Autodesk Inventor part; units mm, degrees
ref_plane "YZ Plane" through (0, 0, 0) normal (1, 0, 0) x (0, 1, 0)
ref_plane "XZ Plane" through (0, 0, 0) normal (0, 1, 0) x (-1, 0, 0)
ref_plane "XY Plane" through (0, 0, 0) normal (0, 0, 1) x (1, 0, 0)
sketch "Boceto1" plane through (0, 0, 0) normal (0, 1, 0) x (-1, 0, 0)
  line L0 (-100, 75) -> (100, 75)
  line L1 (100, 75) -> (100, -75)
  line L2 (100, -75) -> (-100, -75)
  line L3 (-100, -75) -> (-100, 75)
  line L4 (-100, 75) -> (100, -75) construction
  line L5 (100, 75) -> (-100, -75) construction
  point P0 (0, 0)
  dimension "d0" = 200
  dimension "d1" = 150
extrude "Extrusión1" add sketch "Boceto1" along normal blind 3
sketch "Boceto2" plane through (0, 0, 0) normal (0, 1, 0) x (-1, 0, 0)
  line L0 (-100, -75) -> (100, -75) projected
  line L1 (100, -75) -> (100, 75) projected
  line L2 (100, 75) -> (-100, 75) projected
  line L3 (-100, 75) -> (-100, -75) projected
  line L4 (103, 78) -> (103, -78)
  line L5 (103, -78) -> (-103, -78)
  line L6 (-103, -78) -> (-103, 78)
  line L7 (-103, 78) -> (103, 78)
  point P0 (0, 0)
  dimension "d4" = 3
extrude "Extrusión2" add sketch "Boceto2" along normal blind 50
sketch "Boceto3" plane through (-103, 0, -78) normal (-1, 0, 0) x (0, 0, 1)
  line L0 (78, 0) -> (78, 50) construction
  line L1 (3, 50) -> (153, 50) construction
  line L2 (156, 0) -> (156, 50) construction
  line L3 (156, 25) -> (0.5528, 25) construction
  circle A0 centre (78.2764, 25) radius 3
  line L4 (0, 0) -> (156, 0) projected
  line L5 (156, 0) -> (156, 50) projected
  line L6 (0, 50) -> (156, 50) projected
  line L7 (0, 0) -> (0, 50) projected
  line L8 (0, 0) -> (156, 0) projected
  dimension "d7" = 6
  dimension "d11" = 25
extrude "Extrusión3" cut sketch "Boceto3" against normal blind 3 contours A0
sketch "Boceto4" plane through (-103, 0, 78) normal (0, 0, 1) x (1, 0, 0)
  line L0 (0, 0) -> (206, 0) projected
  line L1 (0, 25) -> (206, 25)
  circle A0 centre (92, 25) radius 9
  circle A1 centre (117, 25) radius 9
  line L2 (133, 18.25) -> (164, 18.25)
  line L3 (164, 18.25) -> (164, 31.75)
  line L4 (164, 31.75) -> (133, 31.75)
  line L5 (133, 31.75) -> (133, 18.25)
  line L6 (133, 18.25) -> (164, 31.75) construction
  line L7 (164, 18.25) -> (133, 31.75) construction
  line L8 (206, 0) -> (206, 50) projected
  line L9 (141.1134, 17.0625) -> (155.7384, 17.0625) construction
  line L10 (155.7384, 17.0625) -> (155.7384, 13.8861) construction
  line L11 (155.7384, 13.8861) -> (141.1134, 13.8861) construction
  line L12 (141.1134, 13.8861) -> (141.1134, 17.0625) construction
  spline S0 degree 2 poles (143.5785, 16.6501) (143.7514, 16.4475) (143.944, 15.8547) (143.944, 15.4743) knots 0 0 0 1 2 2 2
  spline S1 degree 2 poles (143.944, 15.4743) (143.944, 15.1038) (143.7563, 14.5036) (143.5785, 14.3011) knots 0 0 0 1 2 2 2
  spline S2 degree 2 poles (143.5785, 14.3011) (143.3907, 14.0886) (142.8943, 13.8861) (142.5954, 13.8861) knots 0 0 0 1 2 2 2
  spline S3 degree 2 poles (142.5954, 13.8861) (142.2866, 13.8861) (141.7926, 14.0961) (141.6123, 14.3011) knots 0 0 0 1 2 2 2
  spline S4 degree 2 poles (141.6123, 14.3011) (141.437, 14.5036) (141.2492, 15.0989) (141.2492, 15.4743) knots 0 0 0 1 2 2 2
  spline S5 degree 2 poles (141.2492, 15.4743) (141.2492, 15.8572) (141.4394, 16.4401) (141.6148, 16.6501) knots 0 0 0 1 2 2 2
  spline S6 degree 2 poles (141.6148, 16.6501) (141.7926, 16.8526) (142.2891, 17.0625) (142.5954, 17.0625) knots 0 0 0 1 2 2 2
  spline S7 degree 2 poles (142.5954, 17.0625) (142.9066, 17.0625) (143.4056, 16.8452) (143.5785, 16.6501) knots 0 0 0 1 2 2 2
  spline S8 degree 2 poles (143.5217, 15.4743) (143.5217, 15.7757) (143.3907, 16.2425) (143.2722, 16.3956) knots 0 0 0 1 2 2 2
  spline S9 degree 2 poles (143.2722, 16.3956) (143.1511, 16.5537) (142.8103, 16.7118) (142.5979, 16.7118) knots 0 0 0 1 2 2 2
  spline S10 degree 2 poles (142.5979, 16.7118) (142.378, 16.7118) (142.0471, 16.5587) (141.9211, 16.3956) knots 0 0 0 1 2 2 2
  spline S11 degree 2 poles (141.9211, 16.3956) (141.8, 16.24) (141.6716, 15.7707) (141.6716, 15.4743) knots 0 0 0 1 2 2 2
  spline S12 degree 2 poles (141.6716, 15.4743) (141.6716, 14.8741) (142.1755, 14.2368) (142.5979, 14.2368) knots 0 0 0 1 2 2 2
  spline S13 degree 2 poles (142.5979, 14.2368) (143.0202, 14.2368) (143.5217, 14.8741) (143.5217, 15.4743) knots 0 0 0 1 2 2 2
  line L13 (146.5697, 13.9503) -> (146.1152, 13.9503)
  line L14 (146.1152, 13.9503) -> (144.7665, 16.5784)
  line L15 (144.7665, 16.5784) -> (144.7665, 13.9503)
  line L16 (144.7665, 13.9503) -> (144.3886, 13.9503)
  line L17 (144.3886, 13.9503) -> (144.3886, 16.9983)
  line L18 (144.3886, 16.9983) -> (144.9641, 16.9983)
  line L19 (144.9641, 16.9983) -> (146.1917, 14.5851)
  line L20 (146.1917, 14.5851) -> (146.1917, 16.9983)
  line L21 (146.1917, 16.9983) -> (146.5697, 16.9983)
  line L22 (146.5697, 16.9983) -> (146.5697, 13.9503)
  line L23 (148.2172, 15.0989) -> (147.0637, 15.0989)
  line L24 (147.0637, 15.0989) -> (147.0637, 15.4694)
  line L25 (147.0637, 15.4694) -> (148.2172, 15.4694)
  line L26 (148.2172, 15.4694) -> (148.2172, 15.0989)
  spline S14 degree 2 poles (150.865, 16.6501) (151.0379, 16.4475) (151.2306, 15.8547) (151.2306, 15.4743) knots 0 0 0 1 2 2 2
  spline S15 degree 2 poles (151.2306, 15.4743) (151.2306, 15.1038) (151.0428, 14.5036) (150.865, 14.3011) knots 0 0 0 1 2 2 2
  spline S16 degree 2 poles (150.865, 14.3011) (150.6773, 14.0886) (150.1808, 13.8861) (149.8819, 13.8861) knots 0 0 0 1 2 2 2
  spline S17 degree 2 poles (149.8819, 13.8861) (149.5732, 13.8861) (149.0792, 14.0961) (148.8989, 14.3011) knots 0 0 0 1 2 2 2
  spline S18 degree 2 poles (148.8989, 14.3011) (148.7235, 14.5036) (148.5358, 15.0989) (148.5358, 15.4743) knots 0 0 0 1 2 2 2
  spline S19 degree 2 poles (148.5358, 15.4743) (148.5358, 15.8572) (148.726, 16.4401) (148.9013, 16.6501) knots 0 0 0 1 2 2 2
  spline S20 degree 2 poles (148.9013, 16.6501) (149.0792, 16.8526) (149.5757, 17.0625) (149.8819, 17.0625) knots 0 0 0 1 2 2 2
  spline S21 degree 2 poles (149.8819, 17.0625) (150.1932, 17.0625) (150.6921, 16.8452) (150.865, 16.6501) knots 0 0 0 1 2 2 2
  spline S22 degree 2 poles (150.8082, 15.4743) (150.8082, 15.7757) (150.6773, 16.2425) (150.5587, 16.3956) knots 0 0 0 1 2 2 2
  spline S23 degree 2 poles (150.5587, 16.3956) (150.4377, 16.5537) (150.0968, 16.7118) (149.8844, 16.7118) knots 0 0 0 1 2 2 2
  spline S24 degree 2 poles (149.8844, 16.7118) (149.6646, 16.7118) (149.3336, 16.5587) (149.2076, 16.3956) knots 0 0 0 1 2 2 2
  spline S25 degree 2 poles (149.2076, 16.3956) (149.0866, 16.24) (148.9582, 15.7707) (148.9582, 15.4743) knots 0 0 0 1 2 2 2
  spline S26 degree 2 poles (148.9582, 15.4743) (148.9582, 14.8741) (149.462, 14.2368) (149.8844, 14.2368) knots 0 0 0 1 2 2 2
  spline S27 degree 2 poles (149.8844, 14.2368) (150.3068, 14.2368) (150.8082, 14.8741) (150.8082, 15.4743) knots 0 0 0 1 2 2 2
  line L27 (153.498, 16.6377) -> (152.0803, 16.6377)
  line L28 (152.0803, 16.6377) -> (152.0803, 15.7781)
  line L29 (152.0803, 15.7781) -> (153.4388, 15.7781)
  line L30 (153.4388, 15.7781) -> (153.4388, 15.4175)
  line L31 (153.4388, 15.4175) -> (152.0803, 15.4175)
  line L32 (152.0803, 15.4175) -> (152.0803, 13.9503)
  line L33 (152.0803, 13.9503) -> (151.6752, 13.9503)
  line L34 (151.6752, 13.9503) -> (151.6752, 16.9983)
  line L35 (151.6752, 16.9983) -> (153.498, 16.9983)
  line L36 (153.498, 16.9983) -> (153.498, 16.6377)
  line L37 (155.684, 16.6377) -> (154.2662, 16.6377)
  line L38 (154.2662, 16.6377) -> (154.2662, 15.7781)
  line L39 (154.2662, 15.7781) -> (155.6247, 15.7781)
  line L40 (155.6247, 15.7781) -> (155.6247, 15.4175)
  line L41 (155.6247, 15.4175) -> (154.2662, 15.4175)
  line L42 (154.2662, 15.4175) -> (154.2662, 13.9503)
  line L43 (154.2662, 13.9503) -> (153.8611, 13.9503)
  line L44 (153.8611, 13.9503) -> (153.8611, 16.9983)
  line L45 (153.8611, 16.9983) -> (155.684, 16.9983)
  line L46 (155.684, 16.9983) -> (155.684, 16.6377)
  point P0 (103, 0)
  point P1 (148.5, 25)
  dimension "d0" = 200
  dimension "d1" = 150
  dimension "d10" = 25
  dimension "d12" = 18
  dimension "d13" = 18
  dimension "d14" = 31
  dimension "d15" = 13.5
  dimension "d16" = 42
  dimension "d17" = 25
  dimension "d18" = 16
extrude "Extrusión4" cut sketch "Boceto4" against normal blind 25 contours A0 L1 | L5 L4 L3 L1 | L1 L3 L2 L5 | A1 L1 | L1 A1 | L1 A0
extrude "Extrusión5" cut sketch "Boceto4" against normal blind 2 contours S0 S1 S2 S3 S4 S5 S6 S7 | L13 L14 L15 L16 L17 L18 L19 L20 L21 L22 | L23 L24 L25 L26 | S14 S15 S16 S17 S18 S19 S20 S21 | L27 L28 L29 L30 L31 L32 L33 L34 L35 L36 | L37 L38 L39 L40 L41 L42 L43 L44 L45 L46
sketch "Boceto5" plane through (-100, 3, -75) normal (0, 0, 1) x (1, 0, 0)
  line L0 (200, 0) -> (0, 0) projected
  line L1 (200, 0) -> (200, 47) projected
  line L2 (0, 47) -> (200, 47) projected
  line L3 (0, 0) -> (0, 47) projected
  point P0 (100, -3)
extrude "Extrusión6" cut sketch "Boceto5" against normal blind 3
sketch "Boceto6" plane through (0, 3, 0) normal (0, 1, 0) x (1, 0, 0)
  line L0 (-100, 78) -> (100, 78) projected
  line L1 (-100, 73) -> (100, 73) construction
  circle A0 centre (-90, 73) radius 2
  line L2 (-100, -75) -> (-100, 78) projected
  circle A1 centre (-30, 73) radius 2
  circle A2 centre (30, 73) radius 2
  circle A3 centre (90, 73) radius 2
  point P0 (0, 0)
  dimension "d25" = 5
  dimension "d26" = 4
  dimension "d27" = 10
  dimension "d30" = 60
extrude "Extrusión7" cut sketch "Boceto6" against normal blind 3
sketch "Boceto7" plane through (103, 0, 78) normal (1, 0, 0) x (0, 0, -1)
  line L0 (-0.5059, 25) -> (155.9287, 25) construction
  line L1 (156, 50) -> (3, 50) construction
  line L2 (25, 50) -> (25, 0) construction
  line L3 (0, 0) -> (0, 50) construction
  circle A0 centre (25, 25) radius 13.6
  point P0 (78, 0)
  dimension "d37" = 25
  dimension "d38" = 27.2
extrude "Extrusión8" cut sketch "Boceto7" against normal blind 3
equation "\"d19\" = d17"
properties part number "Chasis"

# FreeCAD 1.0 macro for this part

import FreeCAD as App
import Part
import Sketcher
Q = App.Units.Quantity


def add_polygon(sketch, points):
    """Adds a closed chain of lines whose ends are joined by coincident constraints."""
    first, n = sketch.GeometryCount, len(points)
    for a, b in zip(points, points[1:] + points[:1]):
        sketch.addGeometry(Part.LineSegment(App.Vector(*a, 0), App.Vector(*b, 0)), False)
    for i in range(n):
        sketch.addConstraint(Sketcher.Constraint("Coincident", first + i, 2, first + (i + 1) % n, 1))

doc = App.newDocument("Part")
params = doc.addObject("Spreadsheet::Sheet", "Params")
for row, (alias, value) in enumerate([
    ("sketch1_width", "200 mm"),
    ("sketch1_height", "150 mm"),
    ("pad1_length", "3 mm"),
    ("sketch2_width", "206 mm"),
    ("sketch2_height", "156 mm"),
    ("pad2_length", "50 mm"),
    ("sketch3_diameter", "6 mm"),
    ("pocket1_length", "3 mm"),
    ("sketch4_diameter", "18 mm"),
    ("sketch4_width", "31 mm"),
    ("sketch4_height", "13.5 mm"),
    ("pocket2_length", "25 mm"),
    ("pocket3_length", "2 mm"),
    ("sketch6_width", "200 mm"),
    ("sketch6_height", "47 mm"),
    ("pocket4_length", "3 mm"),
    ("sketch7_diameter", "4 mm"),
    ("pocket5_length", "3 mm"),
    ("sketch8_diameter", "27.2 mm"),
    ("pocket6_length", "3 mm"),
], start=1):
    params.set(f"A{row}", alias)
    params.set(f"B{row}", "=" + value)
    params.setAlias(f"B{row}", alias)

body = doc.addObject("PartDesign::Body", "Body")

# Sketch on XZ plane
sketch1 = body.newObject("Sketcher::SketchObject", "Sketch")
sketch1.AttachmentSupport = (doc.getObject("XZ_Plane"), [""])
sketch1.MapMode = "FlatFace"
add_polygon(sketch1, [(-100, 75), (100, 75), (100, -75), (-100, -75)])  # lines 0-3
sketch1.addConstraint(Sketcher.Constraint("Horizontal", 0))
sketch1.addConstraint(Sketcher.Constraint("Vertical", 1))
sketch1.addConstraint(Sketcher.Constraint("Horizontal", 2))
sketch1.addConstraint(Sketcher.Constraint("Vertical", 3))
sketch1.addConstraint(Sketcher.Constraint("Symmetric", 0, 2, 2, 2, -1, 1))
sketch1.addConstraint(Sketcher.Constraint("DistanceX", 0, 1, 0, 2, Q("200 mm")))
sketch1.addConstraint(Sketcher.Constraint("DistanceY", 1, 2, 1, 1, Q("150 mm")))
sketch1.setExpression("Constraints[9]", "Params.sketch1_width")
sketch1.setExpression("Constraints[10]", "Params.sketch1_height")
pad1 = body.newObject("PartDesign::Pad", "Pad")
pad1.Profile = sketch1
pad1.setExpression("Length", "Params.pad1_length")
pad1.Reversed = True

# Sketch on XZ plane
sketch2 = body.newObject("Sketcher::SketchObject", "Sketch001")
sketch2.AttachmentSupport = (doc.getObject("XZ_Plane"), [""])
sketch2.MapMode = "FlatFace"
add_polygon(sketch2, [(-103, -78), (-103, 78), (103, 78), (103, -78)])  # lines 0-3
add_polygon(sketch2, [(-100, -75), (100, -75), (100, 75), (-100, 75)])  # lines 4-7
sketch2.addConstraint(Sketcher.Constraint("Vertical", 0))
sketch2.addConstraint(Sketcher.Constraint("Horizontal", 1))
sketch2.addConstraint(Sketcher.Constraint("Vertical", 2))
sketch2.addConstraint(Sketcher.Constraint("Horizontal", 3))
sketch2.addConstraint(Sketcher.Constraint("Horizontal", 4))
sketch2.addConstraint(Sketcher.Constraint("Vertical", 5))
sketch2.addConstraint(Sketcher.Constraint("Horizontal", 6))
sketch2.addConstraint(Sketcher.Constraint("Vertical", 7))
sketch2.addConstraint(Sketcher.Constraint("Symmetric", 0, 2, 2, 2, -1, 1))
sketch2.addConstraint(Sketcher.Constraint("Symmetric", 4, 2, 6, 2, -1, 1))
sketch2.addConstraint(Sketcher.Constraint("DistanceX", 4, 2, 2, 2, Q("3 mm")))
sketch2.addConstraint(Sketcher.Constraint("DistanceY", 2, 2, 4, 2, Q("3 mm")))
sketch2.addConstraint(Sketcher.Constraint("DistanceX", 1, 1, 1, 2, Q("206 mm")))
sketch2.addConstraint(Sketcher.Constraint("DistanceY", 0, 1, 0, 2, Q("156 mm")))
sketch2.setExpression("Constraints[20]", "Params.sketch2_width")
sketch2.setExpression("Constraints[21]", "Params.sketch2_height")
pad2 = body.newObject("PartDesign::Pad", "Pad001")
pad2.Profile = sketch2
pad2.setExpression("Length", "Params.pad2_length")
pad2.Reversed = True

# Sketch on YZ plane
sketch3 = body.newObject("Sketcher::SketchObject", "Sketch002")
sketch3.AttachmentSupport = (doc.getObject("YZ_Plane"), [""])
sketch3.MapMode = "FlatFace"
sketch3.AttachmentOffset = App.Placement(App.Vector(0, 0, -103), App.Rotation())
sketch3.addGeometry(Part.Circle(App.Vector(25, 0.3, 0), App.Vector(0, 0, 1), 3), False)
sketch3.addConstraint(Sketcher.Constraint("Diameter", 0, Q("6 mm")))
sketch3.addConstraint(Sketcher.Constraint("DistanceX", -1, 1, 0, 3, Q("25 mm")))
sketch3.addConstraint(Sketcher.Constraint("DistanceY", -1, 1, 0, 3, Q("0.2764 mm")))
sketch3.setExpression("Constraints[0]", "Params.sketch3_diameter")
pocket1 = body.newObject("PartDesign::Pocket", "Pocket")
pocket1.Profile = sketch3
pocket1.setExpression("Length", "Params.pocket1_length")
pocket1.Reversed = True

# Sketch on XY plane
sketch4 = body.newObject("Sketcher::SketchObject", "Sketch003")
sketch4.AttachmentSupport = (doc.getObject("XY_Plane"), [""])
sketch4.MapMode = "FlatFace"
sketch4.AttachmentOffset = App.Placement(App.Vector(0, 0, 78), App.Rotation())
sketch4.addGeometry(Part.Circle(App.Vector(-11, 25, 0), App.Vector(0, 0, 1), 9), False)  # 0
add_polygon(sketch4, [(30, 32), (30, 18), (61, 18), (61, 32)])  # lines 1-4
sketch4.addGeometry(Part.Circle(App.Vector(14, 25, 0), App.Vector(0, 0, 1), 9), False)  # 5
sketch4.addConstraint(Sketcher.Constraint("Vertical", 1))
sketch4.addConstraint(Sketcher.Constraint("Horizontal", 2))
sketch4.addConstraint(Sketcher.Constraint("Vertical", 3))
sketch4.addConstraint(Sketcher.Constraint("Horizontal", 4))
sketch4.addConstraint(Sketcher.Constraint("Equal", 0, 5))
sketch4.addConstraint(Sketcher.Constraint("Horizontal", 0, 3, 5, 3))
sketch4.addConstraint(Sketcher.Constraint("Diameter", 0, Q("18 mm")))
sketch4.addConstraint(Sketcher.Constraint("DistanceX", 2, 1, 2, 2, Q("31 mm")))
sketch4.addConstraint(Sketcher.Constraint("DistanceY", 1, 2, 1, 1, Q("13.5 mm")))
sketch4.addConstraint(Sketcher.Constraint("DistanceY", -1, 1, 0, 3, Q("25 mm")))
sketch4.addConstraint(Sketcher.Constraint("DistanceX", 0, 3, 5, 3, Q("25 mm")))
sketch4.addConstraint(Sketcher.Constraint("DistanceX", 5, 3, 1, 2, Q("16 mm")))
sketch4.addConstraint(Sketcher.Constraint("DistanceX", 0, 3, -1, 1, Q("11 mm")))
sketch4.addConstraint(Sketcher.Constraint("DistanceY", -1, 1, 1, 2, Q("18.25 mm")))
sketch4.setExpression("Constraints[10]", "Params.sketch4_diameter")
sketch4.setExpression("Constraints[11]", "Params.sketch4_width")
sketch4.setExpression("Constraints[12]", "Params.sketch4_height")
pocket2 = body.newObject("PartDesign::Pocket", "Pocket001")
pocket2.Profile = sketch4
pocket2.setExpression("Length", "Params.pocket2_length")

# Sketch on XY plane
sketch5 = body.newObject("Sketcher::SketchObject", "Sketch004")
sketch5.AttachmentSupport = (doc.getObject("XY_Plane"), [""])
sketch5.MapMode = "FlatFace"
sketch5.AttachmentOffset = App.Placement(App.Vector(0, 0, 78), App.Rotation())
sketch5.addGeometry(Part.BSplineCurve([App.Vector(40.5785, 16.6501, 0), App.Vector(40.7514, 16.4475, 0), App.Vector(40.944, 15.8547, 0), App.Vector(40.944, 15.4743, 0)], [3, 1, 3], [0, 1, 2], False, 2, [1, 1, 1, 1], False), False)  # 0
sketch5.addGeometry(Part.BSplineCurve([App.Vector(39.5954, 17.0625, 0), App.Vector(39.9066, 17.0625, 0), App.Vector(40.4056, 16.8452, 0), App.Vector(40.5785, 16.6501, 0)], [3, 1, 3], [0, 1, 2], False, 2, [1, 1, 1, 1], False), False)  # 1
sketch5.addGeometry(Part.BSplineCurve([App.Vector(38.6148, 16.6501, 0), App.Vector(38.7926, 16.8526, 0), App.Vector(39.2891, 17.0625, 0), App.Vector(39.5954, 17.0625, 0)], [3, 1, 3], [0, 1, 2], False, 2, [1, 1, 1, 1], False), False)  # 2
sketch5.addGeometry(Part.BSplineCurve([App.Vector(38.2492, 15.4743, 0), App.Vector(38.2492, 15.8572, 0), App.Vector(38.4394, 16.4401, 0), App.Vector(38.6148, 16.6501, 0)], [3, 1, 3], [0, 1, 2], False, 2, [1, 1, 1, 1], False), False)  # 3
sketch5.addGeometry(Part.BSplineCurve([App.Vector(38.6123, 14.3011, 0), App.Vector(38.437, 14.5036, 0), App.Vector(38.2492, 15.0989, 0), App.Vector(38.2492, 15.4743, 0)], [3, 1, 3], [0, 1, 2], False, 2, [1, 1, 1, 1], False), False)  # 4
sketch5.addGeometry(Part.BSplineCurve([App.Vector(39.5954, 13.8861, 0), App.Vector(39.2866, 13.8861, 0), App.Vector(38.7926, 14.0961, 0), App.Vector(38.6123, 14.3011, 0)], [3, 1, 3], [0, 1, 2], False, 2, [1, 1, 1, 1], False), False)  # 5
sketch5.addGeometry(Part.BSplineCurve([App.Vector(40.5785, 14.3011, 0), App.Vector(40.3907, 14.0886, 0), App.Vector(39.8943, 13.8861, 0), App.Vector(39.5954, 13.8861, 0)], [3, 1, 3], [0, 1, 2], False, 2, [1, 1, 1, 1], False), False)  # 6
sketch5.addGeometry(Part.BSplineCurve([App.Vector(40.944, 15.4743, 0), App.Vector(40.944, 15.1038, 0), App.Vector(40.7563, 14.5036, 0), App.Vector(40.5785, 14.3011, 0)], [3, 1, 3], [0, 1, 2], False, 2, [1, 1, 1, 1], False), False)  # 7
sketch5.addGeometry(Part.BSplineCurve([App.Vector(40.5217, 15.4743, 0), App.Vector(40.5217, 15.7757, 0), App.Vector(40.3907, 16.2425, 0), App.Vector(40.2722, 16.3956, 0)], [3, 1, 3], [0, 1, 2], False, 2, [1, 1, 1, 1], False), False)  # 8
sketch5.addGeometry(Part.BSplineCurve([App.Vector(39.5979, 14.2368, 0), App.Vector(40.0202, 14.2368, 0), App.Vector(40.5217, 14.8741, 0), App.Vector(40.5217, 15.4743, 0)], [3, 1, 3], [0, 1, 2], False, 2, [1, 1, 1, 1], False), False)  # 9
sketch5.addGeometry(Part.BSplineCurve([App.Vector(38.6716, 15.4743, 0), App.Vector(38.6716, 14.8741, 0), App.Vector(39.1755, 14.2368, 0), App.Vector(39.5979, 14.2368, 0)], [3, 1, 3], [0, 1, 2], False, 2, [1, 1, 1, 1], False), False)  # 10
sketch5.addGeometry(Part.BSplineCurve([App.Vector(38.9211, 16.3956, 0), App.Vector(38.8, 16.24, 0), App.Vector(38.6716, 15.7707, 0), App.Vector(38.6716, 15.4743, 0)], [3, 1, 3], [0, 1, 2], False, 2, [1, 1, 1, 1], False), False)  # 11
sketch5.addGeometry(Part.BSplineCurve([App.Vector(39.5979, 16.7118, 0), App.Vector(39.378, 16.7118, 0), App.Vector(39.0471, 16.5587, 0), App.Vector(38.9211, 16.3956, 0)], [3, 1, 3], [0, 1, 2], False, 2, [1, 1, 1, 1], False), False)  # 12
sketch5.addGeometry(Part.BSplineCurve([App.Vector(40.2722, 16.3956, 0), App.Vector(40.1511, 16.5537, 0), App.Vector(39.8103, 16.7118, 0), App.Vector(39.5979, 16.7118, 0)], [3, 1, 3], [0, 1, 2], False, 2, [1, 1, 1, 1], False), False)  # 13
add_polygon(sketch5, [(43.1152, 13.9503), (43.5697, 13.9503), (43.5697, 16.9983), (43.1917, 16.9983), (43.1917, 14.5851), (41.9641, 16.9983), (41.3886, 16.9983), (41.3886, 13.9503), (41.7665, 13.9503), (41.7665, 16.5784)])  # lines 14-23
add_polygon(sketch5, [(44.0637, 15.0989), (45.2172, 15.0989), (45.2172, 15.4694), (44.0637, 15.4694)])  # lines 24-27
sketch5.addGeometry(Part.BSplineCurve([App.Vector(47.865, 16.6501, 0), App.Vector(48.0379, 16.4475, 0), App.Vector(48.2306, 15.8547, 0), App.Vector(48.2306, 15.4743, 0)], [3, 1, 3], [0, 1, 2], False, 2, [1, 1, 1, 1], False), False)  # 28
sketch5.addGeometry(Part.BSplineCurve([App.Vector(46.8819, 17.0625, 0), App.Vector(47.1932, 17.0625, 0), App.Vector(47.6921, 16.8452, 0), App.Vector(47.865, 16.6501, 0)], [3, 1, 3], [0, 1, 2], False, 2, [1, 1, 1, 1], False), False)  # 29
sketch5.addGeometry(Part.BSplineCurve([App.Vector(45.9013, 16.6501, 0), App.Vector(46.0792, 16.8526, 0), App.Vector(46.5757, 17.0625, 0), App.Vector(46.8819, 17.0625, 0)], [3, 1, 3], [0, 1, 2], False, 2, [1, 1, 1, 1], False), False)  # 30
sketch5.addGeometry(Part.BSplineCurve([App.Vector(45.5358, 15.4743, 0), App.Vector(45.5358, 15.8572, 0), App.Vector(45.726, 16.4401, 0), App.Vector(45.9013, 16.6501, 0)], [3, 1, 3], [0, 1, 2], False, 2, [1, 1, 1, 1], False), False)  # 31
sketch5.addGeometry(Part.BSplineCurve([App.Vector(45.8989, 14.3011, 0), App.Vector(45.7235, 14.5036, 0), App.Vector(45.5358, 15.0989, 0), App.Vector(45.5358, 15.4743, 0)], [3, 1, 3], [0, 1, 2], False, 2, [1, 1, 1, 1], False), False)  # 32
sketch5.addGeometry(Part.BSplineCurve([App.Vector(46.8819, 13.8861, 0), App.Vector(46.5732, 13.8861, 0), App.Vector(46.0792, 14.0961, 0), App.Vector(45.8989, 14.3011, 0)], [3, 1, 3], [0, 1, 2], False, 2, [1, 1, 1, 1], False), False)  # 33
sketch5.addGeometry(Part.BSplineCurve([App.Vector(47.865, 14.3011, 0), App.Vector(47.6773, 14.0886, 0), App.Vector(47.1808, 13.8861, 0), App.Vector(46.8819, 13.8861, 0)], [3, 1, 3], [0, 1, 2], False, 2, [1, 1, 1, 1], False), False)  # 34
sketch5.addGeometry(Part.BSplineCurve([App.Vector(48.2306, 15.4743, 0), App.Vector(48.2306, 15.1038, 0), App.Vector(48.0428, 14.5036, 0), App.Vector(47.865, 14.3011, 0)], [3, 1, 3], [0, 1, 2], False, 2, [1, 1, 1, 1], False), False)  # 35
sketch5.addGeometry(Part.BSplineCurve([App.Vector(47.8082, 15.4743, 0), App.Vector(47.8082, 15.7757, 0), App.Vector(47.6773, 16.2425, 0), App.Vector(47.5587, 16.3956, 0)], [3, 1, 3], [0, 1, 2], False, 2, [1, 1, 1, 1], False), False)  # 36
sketch5.addGeometry(Part.BSplineCurve([App.Vector(46.8844, 14.2368, 0), App.Vector(47.3068, 14.2368, 0), App.Vector(47.8082, 14.8741, 0), App.Vector(47.8082, 15.4743, 0)], [3, 1, 3], [0, 1, 2], False, 2, [1, 1, 1, 1], False), False)  # 37
sketch5.addGeometry(Part.BSplineCurve([App.Vector(45.9582, 15.4743, 0), App.Vector(45.9582, 14.8741, 0), App.Vector(46.462, 14.2368, 0), App.Vector(46.8844, 14.2368, 0)], [3, 1, 3], [0, 1, 2], False, 2, [1, 1, 1, 1], False), False)  # 38
sketch5.addGeometry(Part.BSplineCurve([App.Vector(46.2076, 16.3956, 0), App.Vector(46.0866, 16.24, 0), App.Vector(45.9582, 15.7707, 0), App.Vector(45.9582, 15.4743, 0)], [3, 1, 3], [0, 1, 2], False, 2, [1, 1, 1, 1], False), False)  # 39
sketch5.addGeometry(Part.BSplineCurve([App.Vector(46.8844, 16.7118, 0), App.Vector(46.6646, 16.7118, 0), App.Vector(46.3336, 16.5587, 0), App.Vector(46.2076, 16.3956, 0)], [3, 1, 3], [0, 1, 2], False, 2, [1, 1, 1, 1], False), False)  # 40
sketch5.addGeometry(Part.BSplineCurve([App.Vector(47.5587, 16.3956, 0), App.Vector(47.4377, 16.5537, 0), App.Vector(47.0968, 16.7118, 0), App.Vector(46.8844, 16.7118, 0)], [3, 1, 3], [0, 1, 2], False, 2, [1, 1, 1, 1], False), False)  # 41
add_polygon(sketch5, [(49.0803, 16.6377), (50.498, 16.6377), (50.498, 16.9983), (48.6752, 16.9983), (48.6752, 13.9503), (49.0803, 13.9503), (49.0803, 15.4175), (50.4388, 15.4175), (50.4388, 15.7781), (49.0803, 15.7781)])  # lines 42-51
add_polygon(sketch5, [(51.2662, 16.6377), (52.684, 16.6377), (52.684, 16.9983), (50.8611, 16.9983), (50.8611, 13.9503), (51.2662, 13.9503), (51.2662, 15.4175), (52.6247, 15.4175), (52.6247, 15.7781), (51.2662, 15.7781)])  # lines 52-61
sketch5.addConstraint(Sketcher.Constraint("Block", 0))
sketch5.addConstraint(Sketcher.Constraint("Block", 1))
sketch5.addConstraint(Sketcher.Constraint("Block", 2))
sketch5.addConstraint(Sketcher.Constraint("Block", 3))
sketch5.addConstraint(Sketcher.Constraint("Block", 4))
sketch5.addConstraint(Sketcher.Constraint("Block", 5))
sketch5.addConstraint(Sketcher.Constraint("Block", 6))
sketch5.addConstraint(Sketcher.Constraint("Block", 7))
sketch5.addConstraint(Sketcher.Constraint("Block", 8))
sketch5.addConstraint(Sketcher.Constraint("Block", 9))
sketch5.addConstraint(Sketcher.Constraint("Block", 10))
sketch5.addConstraint(Sketcher.Constraint("Block", 11))
sketch5.addConstraint(Sketcher.Constraint("Block", 12))
sketch5.addConstraint(Sketcher.Constraint("Block", 13))
sketch5.addConstraint(Sketcher.Constraint("Block", 28))
sketch5.addConstraint(Sketcher.Constraint("Block", 29))
sketch5.addConstraint(Sketcher.Constraint("Block", 30))
sketch5.addConstraint(Sketcher.Constraint("Block", 31))
sketch5.addConstraint(Sketcher.Constraint("Block", 32))
sketch5.addConstraint(Sketcher.Constraint("Block", 33))
sketch5.addConstraint(Sketcher.Constraint("Block", 34))
sketch5.addConstraint(Sketcher.Constraint("Block", 35))
sketch5.addConstraint(Sketcher.Constraint("Block", 36))
sketch5.addConstraint(Sketcher.Constraint("Block", 37))
sketch5.addConstraint(Sketcher.Constraint("Block", 38))
sketch5.addConstraint(Sketcher.Constraint("Block", 39))
sketch5.addConstraint(Sketcher.Constraint("Block", 40))
sketch5.addConstraint(Sketcher.Constraint("Block", 41))
sketch5.addConstraint(Sketcher.Constraint("Horizontal", 14))
sketch5.addConstraint(Sketcher.Constraint("Vertical", 15))
sketch5.addConstraint(Sketcher.Constraint("Horizontal", 16))
sketch5.addConstraint(Sketcher.Constraint("Vertical", 17))
sketch5.addConstraint(Sketcher.Constraint("Horizontal", 19))
sketch5.addConstraint(Sketcher.Constraint("Vertical", 20))
sketch5.addConstraint(Sketcher.Constraint("Horizontal", 21))
sketch5.addConstraint(Sketcher.Constraint("Vertical", 22))
sketch5.addConstraint(Sketcher.Constraint("Horizontal", 24))
sketch5.addConstraint(Sketcher.Constraint("Vertical", 25))
sketch5.addConstraint(Sketcher.Constraint("Horizontal", 26))
sketch5.addConstraint(Sketcher.Constraint("Vertical", 27))
sketch5.addConstraint(Sketcher.Constraint("Horizontal", 42))
sketch5.addConstraint(Sketcher.Constraint("Vertical", 43))
sketch5.addConstraint(Sketcher.Constraint("Horizontal", 44))
sketch5.addConstraint(Sketcher.Constraint("Vertical", 45))
sketch5.addConstraint(Sketcher.Constraint("Horizontal", 46))
sketch5.addConstraint(Sketcher.Constraint("Vertical", 47))
sketch5.addConstraint(Sketcher.Constraint("Horizontal", 48))
sketch5.addConstraint(Sketcher.Constraint("Vertical", 49))
sketch5.addConstraint(Sketcher.Constraint("Horizontal", 50))
sketch5.addConstraint(Sketcher.Constraint("Vertical", 51))
sketch5.addConstraint(Sketcher.Constraint("Horizontal", 52))
sketch5.addConstraint(Sketcher.Constraint("Vertical", 53))
sketch5.addConstraint(Sketcher.Constraint("Horizontal", 54))
sketch5.addConstraint(Sketcher.Constraint("Vertical", 55))
sketch5.addConstraint(Sketcher.Constraint("Horizontal", 56))
sketch5.addConstraint(Sketcher.Constraint("Vertical", 57))
sketch5.addConstraint(Sketcher.Constraint("Horizontal", 58))
sketch5.addConstraint(Sketcher.Constraint("Vertical", 59))
sketch5.addConstraint(Sketcher.Constraint("Horizontal", 60))
sketch5.addConstraint(Sketcher.Constraint("Vertical", 61))
sketch5.addConstraint(Sketcher.Constraint("Horizontal", 16, 2, 18, 2))
sketch5.addConstraint(Sketcher.Constraint("Horizontal", 14, 2, 20, 2))
sketch5.addConstraint(Sketcher.Constraint("Horizontal", 19, 2, 43, 2))
sketch5.addConstraint(Sketcher.Constraint("Horizontal", 23, 2, 45, 2))
sketch5.addConstraint(Sketcher.Constraint("Horizontal", 51, 2, 52, 2))
sketch5.addConstraint(Sketcher.Constraint("Horizontal", 44, 2, 53, 2))
sketch5.addConstraint(Sketcher.Constraint("Horizontal", 46, 2, 55, 2))
sketch5.addConstraint(Sketcher.Constraint("Horizontal", 48, 2, 57, 2))
sketch5.addConstraint(Sketcher.Constraint("Horizontal", 50, 2, 59, 2))
sketch5.addConstraint(Sketcher.Constraint("Vertical", 47, 2, 50, 2))
sketch5.addConstraint(Sketcher.Constraint("Vertical", 57, 2, 60, 2))
sketch5.addConstraint(Sketcher.Constraint("Equal", 16, 21))
sketch5.addConstraint(Sketcher.Constraint("Equal", 42, 52))
sketch5.addConstraint(Sketcher.Constraint("Equal", 44, 54))
sketch5.addConstraint(Sketcher.Constraint("Equal", 50, 58))
sketch5.addConstraint(Sketcher.Constraint("Equal", 43, 49))
sketch5.addConstraint(Sketcher.Constraint("DistanceX", 16, 2, 16, 1, Q("0.378 mm")))
sketch5.addConstraint(Sketcher.Constraint("DistanceX", 46, 1, 46, 2, Q("0.405 mm")))
sketch5.addConstraint(Sketcher.Constraint("DistanceX", 54, 2, 54, 1, Q("1.823 mm")))
sketch5.addConstraint(Sketcher.Constraint("DistanceY", 15, 1, 15, 2, Q("3.048 mm")))
sketch5.addConstraint(Sketcher.Constraint("DistanceY", 22, 1, 22, 2, Q("2.628 mm")))
sketch5.addConstraint(Sketcher.Constraint("Distance", 23, Q("2.954 mm")))
sketch5.addConstraint(Sketcher.Constraint("DistanceX", 14, 1, 14, 2, Q("0.4545 mm")))
sketch5.addConstraint(Sketcher.Constraint("DistanceX", 19, 2, 19, 1, Q("0.5755 mm")))
sketch5.addConstraint(Sketcher.Constraint("DistanceX", 24, 1, 24, 2, Q("1.1535 mm")))
sketch5.addConstraint(Sketcher.Constraint("DistanceX", 48, 1, 48, 2, Q("1.3585 mm")))
sketch5.addConstraint(Sketcher.Constraint("DistanceY", 17, 2, 17, 1, Q("2.4132 mm")))
sketch5.addConstraint(Sketcher.Constraint("DistanceY", 25, 1, 25, 2, Q("0.3705 mm")))
sketch5.addConstraint(Sketcher.Constraint("DistanceY", 43, 1, 43, 2, Q("0.3606 mm")))
sketch5.addConstraint(Sketcher.Constraint("DistanceY", 47, 1, 47, 2, Q("1.4672 mm")))
sketch5.addConstraint(Sketcher.Constraint("DistanceY", -1, 1, 17, 2, Q("14.585 mm")))
sketch5.addConstraint(Sketcher.Constraint("DistanceX", -1, 1, 18, 2, Q("41.964 mm")))
sketch5.addConstraint(Sketcher.Constraint("DistanceY", -1, 1, 24, 2, Q("15.099 mm")))
sketch5.addConstraint(Sketcher.Constraint("DistanceX", -1, 1, 42, 2, Q("50.498 mm")))
sketch5.addConstraint(Sketcher.Constraint("DistanceX", -1, 1, 52, 2, Q("52.684 mm")))
sketch5.addConstraint(Sketcher.Constraint("DistanceX", 23, 2, 24, 2, Q("2.102 mm")))
pocket3 = body.newObject("PartDesign::Pocket", "Pocket002")
pocket3.Profile = sketch5
pocket3.setExpression("Length", "Params.pocket3_length")

# Sketch on XY plane
sketch6 = body.newObject("Sketcher::SketchObject", "Sketch005")
sketch6.AttachmentSupport = (doc.getObject("XY_Plane"), [""])
sketch6.MapMode = "FlatFace"
sketch6.AttachmentOffset = App.Placement(App.Vector(0, 0, -75), App.Rotation())
add_polygon(sketch6, [(-100, 3), (100, 3), (100, 50), (-100, 50)])  # lines 0-3
sketch6.addConstraint(Sketcher.Constraint("Horizontal", 0))
sketch6.addConstraint(Sketcher.Constraint("Vertical", 1))
sketch6.addConstraint(Sketcher.Constraint("Horizontal", 2))
sketch6.addConstraint(Sketcher.Constraint("Vertical", 3))
sketch6.addConstraint(Sketcher.Constraint("DistanceX", 0, 1, 0, 2, Q("200 mm")))
sketch6.addConstraint(Sketcher.Constraint("DistanceY", 1, 1, 1, 2, Q("47 mm")))
sketch6.addConstraint(Sketcher.Constraint("DistanceX", -1, 1, 0, 2, Q("100 mm")))
sketch6.addConstraint(Sketcher.Constraint("DistanceY", -1, 1, 0, 2, Q("3 mm")))
sketch6.setExpression("Constraints[8]", "Params.sketch6_width")
sketch6.setExpression("Constraints[9]", "Params.sketch6_height")
pocket4 = body.newObject("PartDesign::Pocket", "Pocket003")
pocket4.Profile = sketch6
pocket4.setExpression("Length", "Params.pocket4_length")

# Sketch on XZ plane
sketch7 = body.newObject("Sketcher::SketchObject", "Sketch006")
sketch7.AttachmentSupport = (doc.getObject("XZ_Plane"), [""])
sketch7.MapMode = "FlatFace"
sketch7.AttachmentOffset = App.Placement(App.Vector(0, 0, -3), App.Rotation())
sketch7.addGeometry(Part.Circle(App.Vector(-90, -73, 0), App.Vector(0, 0, 1), 2), False)
sketch7.addGeometry(Part.Circle(App.Vector(-30, -73, 0), App.Vector(0, 0, 1), 2), False)
sketch7.addGeometry(Part.Circle(App.Vector(30, -73, 0), App.Vector(0, 0, 1), 2), False)
sketch7.addGeometry(Part.Circle(App.Vector(90, -73, 0), App.Vector(0, 0, 1), 2), False)
sketch7.addConstraint(Sketcher.Constraint("Equal", 0, 1))
sketch7.addConstraint(Sketcher.Constraint("Equal", 1, 2))
sketch7.addConstraint(Sketcher.Constraint("Equal", 2, 3))
sketch7.addConstraint(Sketcher.Constraint("Symmetric", 1, 3, 2, 3, -2))
sketch7.addConstraint(Sketcher.Constraint("Symmetric", 0, 3, 3, 3, -2))
sketch7.addConstraint(Sketcher.Constraint("Horizontal", 0, 3, 1, 3))
sketch7.addConstraint(Sketcher.Constraint("Diameter", 0, Q("4 mm")))
sketch7.addConstraint(Sketcher.Constraint("DistanceX", 0, 3, 1, 3, Q("60 mm")))
sketch7.addConstraint(Sketcher.Constraint("DistanceX", 1, 3, 2, 3, Q("60 mm")))
sketch7.addConstraint(Sketcher.Constraint("DistanceY", 0, 3, -1, 1, Q("73 mm")))
sketch7.setExpression("Constraints[6]", "Params.sketch7_diameter")
pocket5 = body.newObject("PartDesign::Pocket", "Pocket004")
pocket5.Profile = sketch7
pocket5.setExpression("Length", "Params.pocket5_length")
pocket5.Reversed = True

# Sketch on YZ plane
sketch8 = body.newObject("Sketcher::SketchObject", "Sketch007")
sketch8.AttachmentSupport = (doc.getObject("YZ_Plane"), [""])
sketch8.MapMode = "FlatFace"
sketch8.AttachmentOffset = App.Placement(App.Vector(0, 0, 103), App.Rotation())
sketch8.addGeometry(Part.Circle(App.Vector(25, 53, 0), App.Vector(0, 0, 1), 14), False)
sketch8.addConstraint(Sketcher.Constraint("Diameter", 0, Q("27.2 mm")))
sketch8.addConstraint(Sketcher.Constraint("DistanceX", -1, 1, 0, 3, Q("25 mm")))
sketch8.addConstraint(Sketcher.Constraint("DistanceY", -1, 1, 0, 3, Q("53 mm")))
sketch8.setExpression("Constraints[0]", "Params.sketch8_diameter")
pocket6 = body.newObject("PartDesign::Pocket", "Pocket005")
pocket6.Profile = sketch8
pocket6.setExpression("Length", "Params.pocket6_length")

doc.recompute()
